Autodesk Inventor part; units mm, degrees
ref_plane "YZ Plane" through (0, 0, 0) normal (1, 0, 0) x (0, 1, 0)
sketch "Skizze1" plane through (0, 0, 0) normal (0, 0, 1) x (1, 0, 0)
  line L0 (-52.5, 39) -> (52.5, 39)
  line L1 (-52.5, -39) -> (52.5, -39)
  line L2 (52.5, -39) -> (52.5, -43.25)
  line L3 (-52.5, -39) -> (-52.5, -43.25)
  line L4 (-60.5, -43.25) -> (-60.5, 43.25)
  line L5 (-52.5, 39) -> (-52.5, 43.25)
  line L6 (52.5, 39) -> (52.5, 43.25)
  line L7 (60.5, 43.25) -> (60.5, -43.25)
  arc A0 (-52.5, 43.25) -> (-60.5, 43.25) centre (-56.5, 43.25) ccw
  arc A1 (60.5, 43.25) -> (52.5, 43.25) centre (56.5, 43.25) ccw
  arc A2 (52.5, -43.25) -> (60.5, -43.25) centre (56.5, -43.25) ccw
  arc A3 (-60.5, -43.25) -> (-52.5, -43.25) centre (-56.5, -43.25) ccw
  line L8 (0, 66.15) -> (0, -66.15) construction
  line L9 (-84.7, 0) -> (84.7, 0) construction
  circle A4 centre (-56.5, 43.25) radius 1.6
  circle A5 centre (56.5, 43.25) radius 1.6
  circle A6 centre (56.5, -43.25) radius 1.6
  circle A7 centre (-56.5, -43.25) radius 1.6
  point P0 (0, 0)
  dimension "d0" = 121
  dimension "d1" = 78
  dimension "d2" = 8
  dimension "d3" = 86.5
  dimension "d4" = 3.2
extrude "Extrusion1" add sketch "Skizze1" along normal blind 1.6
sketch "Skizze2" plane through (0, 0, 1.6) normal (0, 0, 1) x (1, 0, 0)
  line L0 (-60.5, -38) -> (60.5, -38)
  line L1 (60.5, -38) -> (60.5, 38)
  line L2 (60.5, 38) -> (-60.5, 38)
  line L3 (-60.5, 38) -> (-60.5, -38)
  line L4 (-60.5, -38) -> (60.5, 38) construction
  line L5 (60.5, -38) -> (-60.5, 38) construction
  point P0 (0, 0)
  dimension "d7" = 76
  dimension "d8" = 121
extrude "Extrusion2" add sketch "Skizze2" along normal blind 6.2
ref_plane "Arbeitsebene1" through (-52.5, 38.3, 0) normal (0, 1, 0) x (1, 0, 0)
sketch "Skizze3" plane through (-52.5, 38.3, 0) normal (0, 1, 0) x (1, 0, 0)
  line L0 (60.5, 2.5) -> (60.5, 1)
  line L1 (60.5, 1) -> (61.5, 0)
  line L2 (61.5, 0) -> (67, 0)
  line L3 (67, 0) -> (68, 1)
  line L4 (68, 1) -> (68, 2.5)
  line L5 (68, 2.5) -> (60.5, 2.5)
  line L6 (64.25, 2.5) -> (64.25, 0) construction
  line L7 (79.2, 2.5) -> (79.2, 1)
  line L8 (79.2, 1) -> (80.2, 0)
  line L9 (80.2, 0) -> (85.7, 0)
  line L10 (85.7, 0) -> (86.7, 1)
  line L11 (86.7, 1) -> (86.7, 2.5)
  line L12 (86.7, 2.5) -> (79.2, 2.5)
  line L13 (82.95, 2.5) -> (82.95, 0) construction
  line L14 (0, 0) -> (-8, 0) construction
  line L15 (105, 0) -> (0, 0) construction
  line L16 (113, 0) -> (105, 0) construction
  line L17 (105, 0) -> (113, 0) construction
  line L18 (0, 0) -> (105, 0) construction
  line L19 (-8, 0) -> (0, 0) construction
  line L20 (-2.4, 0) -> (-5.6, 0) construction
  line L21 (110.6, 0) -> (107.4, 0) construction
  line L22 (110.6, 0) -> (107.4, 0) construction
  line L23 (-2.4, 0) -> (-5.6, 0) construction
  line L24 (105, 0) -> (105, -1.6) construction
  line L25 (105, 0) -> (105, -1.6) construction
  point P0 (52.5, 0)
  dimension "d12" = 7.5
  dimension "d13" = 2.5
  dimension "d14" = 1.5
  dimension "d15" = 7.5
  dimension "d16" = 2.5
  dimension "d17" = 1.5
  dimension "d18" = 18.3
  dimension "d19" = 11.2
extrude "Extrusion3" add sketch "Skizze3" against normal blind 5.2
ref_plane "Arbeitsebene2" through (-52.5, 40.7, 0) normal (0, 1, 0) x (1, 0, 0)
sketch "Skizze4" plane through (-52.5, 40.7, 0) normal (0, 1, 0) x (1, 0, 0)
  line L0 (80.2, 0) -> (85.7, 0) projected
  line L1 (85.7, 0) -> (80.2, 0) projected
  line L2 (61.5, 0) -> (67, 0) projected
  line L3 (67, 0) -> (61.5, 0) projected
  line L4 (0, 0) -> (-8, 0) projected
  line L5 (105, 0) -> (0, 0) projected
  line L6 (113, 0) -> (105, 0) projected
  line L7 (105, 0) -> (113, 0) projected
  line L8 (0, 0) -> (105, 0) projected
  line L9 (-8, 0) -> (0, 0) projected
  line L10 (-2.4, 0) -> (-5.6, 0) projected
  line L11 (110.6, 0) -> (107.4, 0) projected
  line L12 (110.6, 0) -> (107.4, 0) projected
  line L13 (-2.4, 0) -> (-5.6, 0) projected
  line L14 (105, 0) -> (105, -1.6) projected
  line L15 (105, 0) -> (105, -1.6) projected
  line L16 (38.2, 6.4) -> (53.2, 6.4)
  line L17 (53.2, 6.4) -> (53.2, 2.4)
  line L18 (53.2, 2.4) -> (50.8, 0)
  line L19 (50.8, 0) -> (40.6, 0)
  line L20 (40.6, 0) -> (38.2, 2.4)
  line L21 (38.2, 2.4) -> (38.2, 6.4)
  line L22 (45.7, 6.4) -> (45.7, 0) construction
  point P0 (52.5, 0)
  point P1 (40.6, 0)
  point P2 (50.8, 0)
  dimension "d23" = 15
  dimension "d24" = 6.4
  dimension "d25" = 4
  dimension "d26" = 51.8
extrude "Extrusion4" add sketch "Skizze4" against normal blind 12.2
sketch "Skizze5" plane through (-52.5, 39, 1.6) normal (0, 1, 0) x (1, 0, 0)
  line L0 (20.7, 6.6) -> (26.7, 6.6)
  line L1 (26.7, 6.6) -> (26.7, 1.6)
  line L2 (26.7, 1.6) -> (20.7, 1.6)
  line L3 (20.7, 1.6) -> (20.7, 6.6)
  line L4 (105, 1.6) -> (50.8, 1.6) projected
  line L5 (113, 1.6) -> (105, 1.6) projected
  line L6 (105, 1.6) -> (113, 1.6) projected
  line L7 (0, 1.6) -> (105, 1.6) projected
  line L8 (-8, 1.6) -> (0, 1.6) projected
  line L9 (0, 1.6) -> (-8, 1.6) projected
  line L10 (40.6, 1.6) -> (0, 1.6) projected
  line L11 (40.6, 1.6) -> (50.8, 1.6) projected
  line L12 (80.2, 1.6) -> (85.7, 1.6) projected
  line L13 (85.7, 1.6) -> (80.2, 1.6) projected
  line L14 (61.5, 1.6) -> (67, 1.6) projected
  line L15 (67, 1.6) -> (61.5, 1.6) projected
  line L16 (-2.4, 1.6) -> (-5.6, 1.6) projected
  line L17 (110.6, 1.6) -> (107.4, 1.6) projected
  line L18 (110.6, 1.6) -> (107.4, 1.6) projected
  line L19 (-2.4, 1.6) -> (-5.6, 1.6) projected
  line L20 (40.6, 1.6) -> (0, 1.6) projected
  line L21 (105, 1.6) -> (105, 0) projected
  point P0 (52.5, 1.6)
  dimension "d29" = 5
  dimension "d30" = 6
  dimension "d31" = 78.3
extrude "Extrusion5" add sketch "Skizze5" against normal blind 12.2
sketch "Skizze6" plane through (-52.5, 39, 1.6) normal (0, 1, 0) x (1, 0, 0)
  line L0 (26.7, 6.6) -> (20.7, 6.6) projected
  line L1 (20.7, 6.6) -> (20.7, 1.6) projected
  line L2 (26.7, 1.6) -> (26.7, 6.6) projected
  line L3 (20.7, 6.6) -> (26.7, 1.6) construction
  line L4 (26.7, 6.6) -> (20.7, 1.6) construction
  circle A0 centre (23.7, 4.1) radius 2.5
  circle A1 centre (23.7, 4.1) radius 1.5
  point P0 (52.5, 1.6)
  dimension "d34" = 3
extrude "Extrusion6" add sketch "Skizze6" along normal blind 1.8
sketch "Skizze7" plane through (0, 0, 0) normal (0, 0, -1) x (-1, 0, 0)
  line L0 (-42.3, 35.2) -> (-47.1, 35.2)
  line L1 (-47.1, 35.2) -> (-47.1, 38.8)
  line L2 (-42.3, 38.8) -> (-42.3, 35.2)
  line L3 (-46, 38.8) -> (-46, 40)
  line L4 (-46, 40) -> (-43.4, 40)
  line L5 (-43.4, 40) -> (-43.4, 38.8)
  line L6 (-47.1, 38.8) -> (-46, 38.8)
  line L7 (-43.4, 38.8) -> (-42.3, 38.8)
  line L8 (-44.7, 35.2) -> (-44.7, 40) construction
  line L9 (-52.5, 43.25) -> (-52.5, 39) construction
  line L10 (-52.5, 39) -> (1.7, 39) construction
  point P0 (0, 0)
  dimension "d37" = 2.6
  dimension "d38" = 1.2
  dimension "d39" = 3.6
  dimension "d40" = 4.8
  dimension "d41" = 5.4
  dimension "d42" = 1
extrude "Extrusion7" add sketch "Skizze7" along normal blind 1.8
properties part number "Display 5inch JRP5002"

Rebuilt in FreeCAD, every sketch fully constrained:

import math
import FreeCAD as App
import Part
import Sketcher

V = App.Vector
Q = App.Units.Quantity

doc = App.newDocument("Part")
params = doc.addObject("Spreadsheet::Sheet", "Params")
for row, (alias, value) in enumerate([
    ("sketch1_radius", "4 mm"),
    ("sketch1_diameter", "3.2 mm"),
    ("sketch1_height", "86.5 mm"),
    ("sketch1_width", "105 mm"),
    ("pad1_length", "1.6 mm"),
    ("sketch2_width", "121 mm"),
    ("sketch2_height", "76 mm"),
    ("pad2_length", "6.2 mm"),
    ("sketch3_width", "7.5 mm"),
    ("sketch3_height", "1.5 mm"),
    ("pad3_length", "5.2 mm"),
    ("sketch4_width", "15 mm"),
    ("sketch4_height", "4 mm"),
    ("pad4_length", "12.2 mm"),
    ("sketch5_width", "6 mm"),
    ("sketch5_height", "5 mm"),
    ("pad5_length", "12.2 mm"),
    ("sketch6_diameter", "3 mm"),
    ("sketch6_diameter2", "5 mm"),
    ("pad6_length", "1.8 mm"),
    ("sketch7_width", "4.8 mm"),
    ("sketch7_width2", "2.6 mm"),
    ("sketch7_height", "3.6 mm"),
    ("sketch7_height2", "1.2 mm"),
    ("pad7_length", "1.8 mm"),
], start=1):
    params.set(f"A{row}", alias)
    params.set(f"B{row}", "=" + value)
    params.setAlias(f"B{row}", alias)

body = doc.addObject("PartDesign::Body", "Body")

# Sketch on XY plane
sketch1 = body.newObject("Sketcher::SketchObject", "Sketch")
sketch1.AttachmentSupport = (doc.getObject("XY_Plane"), [""])
sketch1.MapMode = "FlatFace"
sketch1.addGeometry([
    Part.LineSegment(V(52.5, 39, 0), V(-52.5, 39, 0)),  # 0
    Part.LineSegment(V(-52.5, 39, 0), V(-52.5, 43.2, 0)),  # 1
    Part.ArcOfCircle(Part.Circle(V(-56.5, 43.2, 0), V(0, 0, 1), 4), math.radians(0), math.radians(180)),  # 2
    Part.LineSegment(V(-60.5, 43.2, 0), V(-60.5, -43.2, 0)),  # 3
    Part.ArcOfCircle(Part.Circle(V(-56.5, -43.2, 0), V(0, 0, 1), 4), math.radians(180), math.radians(360)),  # 4
    Part.LineSegment(V(-52.5, -43.2, 0), V(-52.5, -39, 0)),  # 5
    Part.LineSegment(V(-52.5, -39, 0), V(52.5, -39, 0)),  # 6
    Part.LineSegment(V(52.5, -39, 0), V(52.5, -43.2, 0)),  # 7
    Part.ArcOfCircle(Part.Circle(V(56.5, -43.2, 0), V(0, 0, 1), 4), math.radians(180), math.radians(360)),  # 8
    Part.LineSegment(V(60.5, -43.2, 0), V(60.5, 43.2, 0)),  # 9
    Part.ArcOfCircle(Part.Circle(V(56.5, 43.2, 0), V(0, 0, 1), 4), math.radians(0), math.radians(180)),  # 10
    Part.LineSegment(V(52.5, 43.2, 0), V(52.5, 39, 0)),  # 11
    Part.Circle(V(-56.5, -43.2, 0), V(0, 0, 1), 1.6),  # 12
    Part.Circle(V(56.5, -43.2, 0), V(0, 0, 1), 1.6),  # 13
    Part.Circle(V(-56.5, 43.2, 0), V(0, 0, 1), 1.6),  # 14
    Part.Circle(V(56.5, 43.2, 0), V(0, 0, 1), 1.6),  # 15
], False)
sketch1.addConstraint([
    Sketcher.Constraint("Coincident", 0, 2, 1, 1),
    Sketcher.Constraint("Tangent", 1, 2, 2, 1),
    Sketcher.Constraint("Tangent", 2, 2, 3, 1),
    Sketcher.Constraint("Tangent", 3, 2, 4, 1),
    Sketcher.Constraint("Tangent", 4, 2, 5, 1),
    Sketcher.Constraint("Coincident", 5, 2, 6, 1),
    Sketcher.Constraint("Coincident", 6, 2, 7, 1),
    Sketcher.Constraint("Tangent", 7, 2, 8, 1),
    Sketcher.Constraint("Tangent", 8, 2, 9, 1),
    Sketcher.Constraint("Tangent", 9, 2, 10, 1),
    Sketcher.Constraint("Tangent", 10, 2, 11, 1),
    Sketcher.Constraint("Coincident", 11, 2, 0, 1),
    Sketcher.Constraint("Horizontal", 0),
    Sketcher.Constraint("Vertical", 1),
    Sketcher.Constraint("Vertical", 3),
    Sketcher.Constraint("Vertical", 5),
    Sketcher.Constraint("Horizontal", 6),
    Sketcher.Constraint("Vertical", 7),
    Sketcher.Constraint("Vertical", 9),
    Sketcher.Constraint("Vertical", 11),
    Sketcher.Constraint("Coincident", 12, 3, 4, 3),
    Sketcher.Constraint("Coincident", 13, 3, 8, 3),
    Sketcher.Constraint("Coincident", 14, 3, 2, 3),
    Sketcher.Constraint("Coincident", 15, 3, 10, 3),
    Sketcher.Constraint("Equal", 2, 4),
    Sketcher.Constraint("Equal", 4, 8),
    Sketcher.Constraint("Equal", 8, 10),
    Sketcher.Constraint("Equal", 12, 13),
    Sketcher.Constraint("Equal", 13, 14),
    Sketcher.Constraint("Equal", 14, 15),
    Sketcher.Constraint("Symmetric", 2, 3, 8, 3, -1, 1),
    Sketcher.Constraint("Horizontal", 4, 3, 8, 3),
    Sketcher.Constraint("Horizontal", 2, 3, 10, 3),
    Sketcher.Constraint("Equal", 1, 5),
    Sketcher.Constraint("Radius", 2, Q("4 mm")),
    Sketcher.Constraint("Diameter", 12, Q("3.2 mm")),
    Sketcher.Constraint("DistanceY", 3, 2, 3, 1, Q("86.5 mm")),
    Sketcher.Constraint("DistanceY", 5, 2, 0, 2, Q("78 mm")),
    Sketcher.Constraint("DistanceX", 0, 2, 0, 1, Q("105 mm")),
])
sketch1.setExpression("Constraints[34]", "Params.sketch1_radius")
sketch1.setExpression("Constraints[35]", "Params.sketch1_diameter")
sketch1.setExpression("Constraints[36]", "Params.sketch1_height")
sketch1.setExpression("Constraints[38]", "Params.sketch1_width")
pad1 = body.newObject("PartDesign::Pad", "Pad")
pad1.Profile = sketch1
pad1.setExpression("Length", "Params.pad1_length")

# Sketch on XY plane
sketch2 = body.newObject("Sketcher::SketchObject", "Sketch001")
sketch2.AttachmentSupport = (doc.getObject("XY_Plane"), [""])
sketch2.MapMode = "FlatFace"
sketch2.AttachmentOffset = App.Placement(V(0, 0, 1.6), App.Rotation())
sketch2.addGeometry([
    Part.LineSegment(V(-60, 38, 0), V(-60, -38, 0)),
    Part.LineSegment(V(-60, -38, 0), V(60, -38, 0)),
    Part.LineSegment(V(60, -38, 0), V(60, 38, 0)),
    Part.LineSegment(V(60, 38, 0), V(-60, 38, 0)),
], False)
sketch2.addConstraint([
    Sketcher.Constraint("Coincident", 0, 2, 1, 1),
    Sketcher.Constraint("Coincident", 1, 2, 2, 1),
    Sketcher.Constraint("Coincident", 2, 2, 3, 1),
    Sketcher.Constraint("Coincident", 3, 2, 0, 1),
    Sketcher.Constraint("Vertical", 0),
    Sketcher.Constraint("Horizontal", 1),
    Sketcher.Constraint("Vertical", 2),
    Sketcher.Constraint("Horizontal", 3),
    Sketcher.Constraint("Symmetric", 0, 2, 2, 2, -1, 1),
    Sketcher.Constraint("DistanceX", 1, 1, 1, 2, Q("121 mm")),
    Sketcher.Constraint("DistanceY", 0, 2, 0, 1, Q("76 mm")),
])
sketch2.setExpression("Constraints[9]", "Params.sketch2_width")
sketch2.setExpression("Constraints[10]", "Params.sketch2_height")
pad2 = body.newObject("PartDesign::Pad", "Pad001")
pad2.Profile = sketch2
pad2.setExpression("Length", "Params.pad2_length")

# Sketch on XZ plane
sketch3 = body.newObject("Sketcher::SketchObject", "Sketch002")
sketch3.AttachmentSupport = (doc.getObject("XZ_Plane"), [""])
sketch3.MapMode = "FlatFace"
sketch3.AttachmentOffset = App.Placement(V(0, 0, -38.3), App.Rotation())
sketch3.addGeometry([
    Part.LineSegment(V(15.5, -2.5, 0), V(8, -2.5, 0)),  # 0
    Part.LineSegment(V(8, -2.5, 0), V(8, -1, 0)),  # 1
    Part.LineSegment(V(8, -1, 0), V(9, 0, 0)),  # 2
    Part.LineSegment(V(9, 0, 0), V(14.5, 0, 0)),  # 3
    Part.LineSegment(V(14.5, 0, 0), V(15.5, -1, 0)),  # 4
    Part.LineSegment(V(15.5, -1, 0), V(15.5, -2.5, 0)),  # 5
    Part.LineSegment(V(34.2, -2.5, 0), V(26.7, -2.5, 0)),  # 6
    Part.LineSegment(V(26.7, -2.5, 0), V(26.7, -1, 0)),  # 7
    Part.LineSegment(V(26.7, -1, 0), V(27.7, 0, 0)),  # 8
    Part.LineSegment(V(27.7, 0, 0), V(33.2, 0, 0)),  # 9
    Part.LineSegment(V(33.2, 0, 0), V(34.2, -1, 0)),  # 10
    Part.LineSegment(V(34.2, -1, 0), V(34.2, -2.5, 0)),  # 11
], False)
sketch3.addConstraint([
    Sketcher.Constraint("Coincident", 0, 2, 1, 1),
    Sketcher.Constraint("Coincident", 1, 2, 2, 1),
    Sketcher.Constraint("Coincident", 2, 2, 3, 1),
    Sketcher.Constraint("Coincident", 3, 2, 4, 1),
    Sketcher.Constraint("Coincident", 4, 2, 5, 1),
    Sketcher.Constraint("Coincident", 5, 2, 0, 1),
    Sketcher.Constraint("Coincident", 6, 2, 7, 1),
    Sketcher.Constraint("Coincident", 7, 2, 8, 1),
    Sketcher.Constraint("Coincident", 8, 2, 9, 1),
    Sketcher.Constraint("Coincident", 9, 2, 10, 1),
    Sketcher.Constraint("Coincident", 10, 2, 11, 1),
    Sketcher.Constraint("Coincident", 11, 2, 6, 1),
    Sketcher.Constraint("Horizontal", 0),
    Sketcher.Constraint("Vertical", 1),
    Sketcher.Constraint("Horizontal", 3),
    Sketcher.Constraint("Vertical", 5),
    Sketcher.Constraint("Horizontal", 6),
    Sketcher.Constraint("Vertical", 7),
    Sketcher.Constraint("Horizontal", 9),
    Sketcher.Constraint("Vertical", 11),
    Sketcher.Constraint("PointOnObject", 2, 2, -1),
    Sketcher.Constraint("PointOnObject", 8, 2, -1),
    Sketcher.Constraint("Perpendicular", 2, 4),
    Sketcher.Constraint("Perpendicular", 4, 8),
    Sketcher.Constraint("Perpendicular", 8, 10),
    Sketcher.Constraint("Horizontal", 1, 2, 4, 2),
    Sketcher.Constraint("Horizontal", 5, 2, 6, 2),
    Sketcher.Constraint("Horizontal", 4, 2, 7, 2),
    Sketcher.Constraint("Horizontal", 7, 2, 10, 2),
    Sketcher.Constraint("Equal", 0, 6),
    Sketcher.Constraint("Equal", 2, 4),
    Sketcher.Constraint("DistanceX", 0, 2, 0, 1, Q("7.5 mm")),
    Sketcher.Constraint("DistanceY", 1, 1, 1, 2, Q("1.5 mm")),
    Sketcher.Constraint("DistanceY", 0, 2, -1, 1, Q("2.5 mm")),
    Sketcher.Constraint("DistanceX", 5, 2, 6, 2, Q("11.2 mm")),
    Sketcher.Constraint("DistanceX", -1, 1, 0, 2, Q("8 mm")),
])
sketch3.setExpression("Constraints[31]", "Params.sketch3_width")
sketch3.setExpression("Constraints[32]", "Params.sketch3_height")
pad3 = body.newObject("PartDesign::Pad", "Pad002")
pad3.Profile = sketch3
pad3.setExpression("Length", "Params.pad3_length")

# Sketch on XZ plane
sketch4 = body.newObject("Sketcher::SketchObject", "Sketch003")
sketch4.AttachmentSupport = (doc.getObject("XZ_Plane"), [""])
sketch4.MapMode = "FlatFace"
sketch4.AttachmentOffset = App.Placement(V(0, 0, -40.7), App.Rotation())
sketch4.addGeometry([
    Part.LineSegment(V(-11.9, 0, 0), V(-1.7, 0, 0)),  # 0
    Part.LineSegment(V(-1.7, 0, 0), V(0.7, -2.4, 0)),  # 1
    Part.LineSegment(V(0.7, -2.4, 0), V(0.7, -6.4, 0)),  # 2
    Part.LineSegment(V(0.7, -6.4, 0), V(-14.3, -6.4, 0)),  # 3
    Part.LineSegment(V(-14.3, -6.4, 0), V(-14.3, -2.4, 0)),  # 4
    Part.LineSegment(V(-14.3, -2.4, 0), V(-11.9, 0, 0)),  # 5
], False)
sketch4.addConstraint([
    Sketcher.Constraint("Coincident", 0, 2, 1, 1),
    Sketcher.Constraint("Coincident", 1, 2, 2, 1),
    Sketcher.Constraint("Coincident", 2, 2, 3, 1),
    Sketcher.Constraint("Coincident", 3, 2, 4, 1),
    Sketcher.Constraint("Coincident", 4, 2, 5, 1),
    Sketcher.Constraint("Coincident", 5, 2, 0, 1),
    Sketcher.Constraint("Horizontal", 0),
    Sketcher.Constraint("Vertical", 2),
    Sketcher.Constraint("Horizontal", 3),
    Sketcher.Constraint("Vertical", 4),
    Sketcher.Constraint("PointOnObject", 0, 2, -1),
    Sketcher.Constraint("Perpendicular", 1, 5),
    Sketcher.Constraint("Horizontal", 1, 2, 4, 2),
    Sketcher.Constraint("Equal", 1, 5),
    Sketcher.Constraint("DistanceX", 3, 2, 3, 1, Q("15 mm")),
    Sketcher.Constraint("DistanceY", 2, 2, 2, 1, Q("4 mm")),
    Sketcher.Constraint("DistanceY", 2, 2, -1, 1, Q("6.4 mm")),
    Sketcher.Constraint("DistanceX", 0, 2, -1, 1, Q("1.7 mm")),
])
sketch4.setExpression("Constraints[14]", "Params.sketch4_width")
sketch4.setExpression("Constraints[15]", "Params.sketch4_height")
pad4 = body.newObject("PartDesign::Pad", "Pad003")
pad4.Profile = sketch4
pad4.setExpression("Length", "Params.pad4_length")

# Sketch on XZ plane
sketch5 = body.newObject("Sketcher::SketchObject", "Sketch004")
sketch5.AttachmentSupport = (doc.getObject("XZ_Plane"), [""])
sketch5.MapMode = "FlatFace"
sketch5.AttachmentOffset = App.Placement(V(0, 0, -39), App.Rotation())
sketch5.addGeometry([
    Part.LineSegment(V(-26, -5, 0), V(-32, -5, 0)),
    Part.LineSegment(V(-32, -5, 0), V(-32, 0, 0)),
    Part.LineSegment(V(-32, 0, 0), V(-26, 0, 0)),
    Part.LineSegment(V(-26, 0, 0), V(-26, -5, 0)),
], False)
sketch5.addConstraint([
    Sketcher.Constraint("Coincident", 0, 2, 1, 1),
    Sketcher.Constraint("Coincident", 1, 2, 2, 1),
    Sketcher.Constraint("Coincident", 2, 2, 3, 1),
    Sketcher.Constraint("Coincident", 3, 2, 0, 1),
    Sketcher.Constraint("Horizontal", 0),
    Sketcher.Constraint("Vertical", 1),
    Sketcher.Constraint("Horizontal", 2),
    Sketcher.Constraint("Vertical", 3),
    Sketcher.Constraint("PointOnObject", 1, 2, -1),
    Sketcher.Constraint("DistanceX", 0, 2, 0, 1, Q("6 mm")),
    Sketcher.Constraint("DistanceY", 1, 1, 1, 2, Q("5 mm")),
    Sketcher.Constraint("DistanceX", 0, 2, -1, 1, Q("31.8 mm")),
])
sketch5.setExpression("Constraints[9]", "Params.sketch5_width")
sketch5.setExpression("Constraints[10]", "Params.sketch5_height")
pad5 = body.newObject("PartDesign::Pad", "Pad004")
pad5.Profile = sketch5
pad5.setExpression("Length", "Params.pad5_length")

# Sketch on XZ plane
sketch6 = body.newObject("Sketcher::SketchObject", "Sketch005")
sketch6.AttachmentSupport = (doc.getObject("XZ_Plane"), [""])
sketch6.MapMode = "FlatFace"
sketch6.AttachmentOffset = App.Placement(V(0, 0, -39), App.Rotation())
sketch6.addGeometry([
    Part.Circle(V(-28.8, -2.5, 0), V(0, 0, 1), 2.5),
    Part.Circle(V(-28.8, -2.5, 0), V(0, 0, 1), 1.5),
], False)
sketch6.addConstraint([
    Sketcher.Constraint("Coincident", 1, 3, 0, 3),
    Sketcher.Constraint("Diameter", 1, Q("3 mm")),
    Sketcher.Constraint("Diameter", 0, Q("5 mm")),
    Sketcher.Constraint("DistanceX", 0, 3, -1, 1, Q("28.8 mm")),
    Sketcher.Constraint("DistanceY", 0, 3, -1, 1, Q("2.5 mm")),
])
sketch6.setExpression("Constraints[1]", "Params.sketch6_diameter")
sketch6.setExpression("Constraints[2]", "Params.sketch6_diameter2")
pad6 = body.newObject("PartDesign::Pad", "Pad005")
pad6.Profile = sketch6
pad6.setExpression("Length", "Params.pad6_length")
pad6.Reversed = True

# Sketch on XY plane
sketch7 = body.newObject("Sketcher::SketchObject", "Sketch006")
sketch7.AttachmentSupport = (doc.getObject("XY_Plane"), [""])
sketch7.MapMode = "FlatFace"
sketch7.addGeometry([
    Part.LineSegment(V(47.1, 35.2, 0), V(42.3, 35.2, 0)),  # 0
    Part.LineSegment(V(42.3, 35.2, 0), V(42.3, 38.8, 0)),  # 1
    Part.LineSegment(V(42.3, 38.8, 0), V(43.4, 38.8, 0)),  # 2
    Part.LineSegment(V(43.4, 38.8, 0), V(43.4, 40, 0)),  # 3
    Part.LineSegment(V(43.4, 40, 0), V(46, 40, 0)),  # 4
    Part.LineSegment(V(46, 40, 0), V(46, 38.8, 0)),  # 5
    Part.LineSegment(V(46, 38.8, 0), V(47.1, 38.8, 0)),  # 6
    Part.LineSegment(V(47.1, 38.8, 0), V(47.1, 35.2, 0)),  # 7
], False)
sketch7.addConstraint([
    Sketcher.Constraint("Coincident", 0, 2, 1, 1),
    Sketcher.Constraint("Coincident", 1, 2, 2, 1),
    Sketcher.Constraint("Coincident", 2, 2, 3, 1),
    Sketcher.Constraint("Coincident", 3, 2, 4, 1),
    Sketcher.Constraint("Coincident", 4, 2, 5, 1),
    Sketcher.Constraint("Coincident", 5, 2, 6, 1),
    Sketcher.Constraint("Coincident", 6, 2, 7, 1),
    Sketcher.Constraint("Coincident", 7, 2, 0, 1),
    Sketcher.Constraint("Horizontal", 0),
    Sketcher.Constraint("Vertical", 1),
    Sketcher.Constraint("Horizontal", 2),
    Sketcher.Constraint("Vertical", 3),
    Sketcher.Constraint("Horizontal", 4),
    Sketcher.Constraint("Vertical", 5),
    Sketcher.Constraint("Horizontal", 6),
    Sketcher.Constraint("Vertical", 7),
    Sketcher.Constraint("Horizontal", 2, 2, 5, 2),
    Sketcher.Constraint("Equal", 2, 6),
    Sketcher.Constraint("DistanceX", 0, 2, 0, 1, Q("4.8 mm")),
    Sketcher.Constraint("DistanceX", 4, 1, 4, 2, Q("2.6 mm")),
    Sketcher.Constraint("DistanceY", 1, 1, 1, 2, Q("3.6 mm")),
    Sketcher.Constraint("DistanceY", 3, 1, 3, 2, Q("1.2 mm")),
    Sketcher.Constraint("DistanceY", -1, 1, 3, 2, Q("40 mm")),
    Sketcher.Constraint("DistanceX", -1, 1, 4, 2, Q("46 mm")),
])
sketch7.setExpression("Constraints[18]", "Params.sketch7_width")
sketch7.setExpression("Constraints[19]", "Params.sketch7_width2")
sketch7.setExpression("Constraints[20]", "Params.sketch7_height")
sketch7.setExpression("Constraints[21]", "Params.sketch7_height2")
pad7 = body.newObject("PartDesign::Pad", "Pad006")
pad7.Profile = sketch7
pad7.setExpression("Length", "Params.pad7_length")
pad7.Reversed = True

doc.recompute()
